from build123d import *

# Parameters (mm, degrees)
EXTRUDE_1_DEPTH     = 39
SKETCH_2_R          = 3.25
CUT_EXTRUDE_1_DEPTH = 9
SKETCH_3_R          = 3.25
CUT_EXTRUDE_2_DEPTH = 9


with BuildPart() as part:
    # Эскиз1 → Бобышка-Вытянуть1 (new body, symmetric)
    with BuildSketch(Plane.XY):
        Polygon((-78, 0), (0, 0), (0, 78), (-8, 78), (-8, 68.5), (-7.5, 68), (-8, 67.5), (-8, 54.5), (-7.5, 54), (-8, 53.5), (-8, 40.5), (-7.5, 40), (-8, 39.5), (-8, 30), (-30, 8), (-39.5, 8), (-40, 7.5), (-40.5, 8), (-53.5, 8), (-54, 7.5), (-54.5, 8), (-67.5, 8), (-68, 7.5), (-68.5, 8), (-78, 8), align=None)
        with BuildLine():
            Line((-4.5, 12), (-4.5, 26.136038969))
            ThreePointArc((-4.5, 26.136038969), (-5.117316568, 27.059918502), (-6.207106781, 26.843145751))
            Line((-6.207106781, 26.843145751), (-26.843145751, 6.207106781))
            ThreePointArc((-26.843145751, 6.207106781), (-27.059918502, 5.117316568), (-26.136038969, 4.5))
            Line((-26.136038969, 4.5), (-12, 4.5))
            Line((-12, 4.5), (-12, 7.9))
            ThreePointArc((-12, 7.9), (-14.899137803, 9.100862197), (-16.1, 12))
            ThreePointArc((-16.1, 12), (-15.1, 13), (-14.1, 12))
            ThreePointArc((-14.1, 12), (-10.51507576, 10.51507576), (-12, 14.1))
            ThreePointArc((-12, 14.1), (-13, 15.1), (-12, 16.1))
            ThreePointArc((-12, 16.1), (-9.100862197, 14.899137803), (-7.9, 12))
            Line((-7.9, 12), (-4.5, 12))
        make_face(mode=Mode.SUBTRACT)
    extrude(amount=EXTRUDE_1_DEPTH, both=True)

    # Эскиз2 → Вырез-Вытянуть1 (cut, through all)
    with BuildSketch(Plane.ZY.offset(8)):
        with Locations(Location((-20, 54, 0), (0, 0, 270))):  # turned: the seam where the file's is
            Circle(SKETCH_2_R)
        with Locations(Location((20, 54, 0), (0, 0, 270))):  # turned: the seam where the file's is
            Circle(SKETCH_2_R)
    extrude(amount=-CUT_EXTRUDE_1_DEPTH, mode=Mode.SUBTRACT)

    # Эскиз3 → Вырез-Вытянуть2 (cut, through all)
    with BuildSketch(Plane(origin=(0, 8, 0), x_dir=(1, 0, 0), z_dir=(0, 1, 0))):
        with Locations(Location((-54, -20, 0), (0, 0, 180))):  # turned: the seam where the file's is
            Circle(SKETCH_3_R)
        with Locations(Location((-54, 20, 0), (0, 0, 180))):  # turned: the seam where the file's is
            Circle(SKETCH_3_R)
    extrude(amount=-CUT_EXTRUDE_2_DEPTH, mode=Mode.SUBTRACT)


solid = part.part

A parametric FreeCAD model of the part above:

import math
import FreeCAD as App
import Part
import Sketcher


def add_polygon(sketch, points):
    """Adds a closed chain of lines whose ends are joined by coincident constraints."""
    first, n = sketch.GeometryCount, len(points)
    for a, b in zip(points, points[1:] + points[:1]):
        sketch.addGeometry(Part.LineSegment(App.Vector(*a, 0), App.Vector(*b, 0)), False)
    for i in range(n):
        sketch.addConstraint(Sketcher.Constraint("Coincident", first + i, 2, first + (i + 1) % n, 1))

doc = App.newDocument("Part")
params = doc.addObject("Spreadsheet::Sheet", "Params")
for row, (alias, value) in enumerate([
    ("sketch1_radius", "1 mm"),
    ("sketch1_radius2", "4.1 mm"),
    ("sketch1_width", "78 mm"),
    ("sketch1_width2", "8 mm"),
    ("sketch1_width3", "13 mm"),
    ("pad1_length", "78 mm"),
    ("sketch2_diameter", "6.5 mm"),
    ("sketch3_diameter", "6.5 mm"),
], start=1):
    params.set(f"A{row}", alias)
    params.set(f"B{row}", "=" + value)
    params.setAlias(f"B{row}", alias)

body = doc.addObject("PartDesign::Body", "Body")

# Sketch on XY plane
sketch1 = body.newObject("Sketcher::SketchObject", "Sketch")
sketch1.AttachmentSupport = (doc.getObject("XY_Plane"), [""])
sketch1.MapMode = "FlatFace"
add_polygon(sketch1, [(-78, 0), (0, 0), (0, 78), (-8, 78), (-8, 68.5), (-7.5, 68), (-8, 67.5), (-8, 54.5), (-7.5, 54), (-8, 53.5), (-8, 40.5), (-7.5, 40), (-8, 39.5), (-8, 30), (-30, 8), (-39.5, 8), (-40, 7.5), (-40.5, 8), (-53.5, 8), (-54, 7.5), (-54.5, 8), (-67.5, 8), (-68, 7.5), (-68.5, 8), (-78, 8)])  # lines 0-24
sketch1.addGeometry(Part.LineSegment(App.Vector(-4.5, 26.1, 0), App.Vector(-4.5, 12, 0)), False)  # 25
sketch1.addGeometry(Part.LineSegment(App.Vector(-4.5, 12, 0), App.Vector(-7.9, 12, 0)), False)  # 26
sketch1.addGeometry(Part.ArcOfCircle(Part.Circle(App.Vector(-12, 12, 0), App.Vector(0, 0, 1), 4.1), math.radians(0), math.radians(90)), False)  # 27
sketch1.addGeometry(Part.ArcOfCircle(Part.Circle(App.Vector(-12, 15.1, 0), App.Vector(0, 0, 1), 1), math.radians(90), math.radians(270)), False)  # 28
sketch1.addGeometry(Part.ArcOfCircle(Part.Circle(App.Vector(-12, 12, 0), App.Vector(0, 0, 1), 2.1), math.radians(180), math.radians(450)), False)  # 29
sketch1.addGeometry(Part.ArcOfCircle(Part.Circle(App.Vector(-15.1, 12, 0), App.Vector(0, 0, 1), 1), math.radians(0), math.radians(180)), False)  # 30
sketch1.addGeometry(Part.ArcOfCircle(Part.Circle(App.Vector(-12, 12, 0), App.Vector(0, 0, 1), 4.1), math.radians(180), math.radians(270)), False)  # 31
sketch1.addGeometry(Part.LineSegment(App.Vector(-12, 7.9, 0), App.Vector(-12, 4.5, 0)), False)  # 32
sketch1.addGeometry(Part.LineSegment(App.Vector(-12, 4.5, 0), App.Vector(-26.1, 4.5, 0)), False)  # 33
sketch1.addGeometry(Part.ArcOfCircle(Part.Circle(App.Vector(-26.1, 5.5, 0), App.Vector(0, 0, 1), 1), math.radians(135), math.radians(270)), False)  # 34
sketch1.addGeometry(Part.LineSegment(App.Vector(-26.8, 6.2, 0), App.Vector(-6.2, 26.8, 0)), False)  # 35
sketch1.addGeometry(Part.ArcOfCircle(Part.Circle(App.Vector(-5.5, 26.1, 0), App.Vector(0, 0, 1), 1), math.radians(0), math.radians(135)), False)  # 36
sketch1.addConstraint(Sketcher.Constraint("Coincident", 25, 2, 26, 1))
sketch1.addConstraint(Sketcher.Constraint("Coincident", 26, 2, 27, 1))
sketch1.addConstraint(Sketcher.Constraint("Tangent", 27, 2, 28, 1))
sketch1.addConstraint(Sketcher.Constraint("Tangent", 28, 2, 29, 2))
sketch1.addConstraint(Sketcher.Constraint("Tangent", 29, 1, 30, 1))
sketch1.addConstraint(Sketcher.Constraint("Tangent", 30, 2, 31, 1))
sketch1.addConstraint(Sketcher.Constraint("Coincident", 31, 2, 32, 1))
sketch1.addConstraint(Sketcher.Constraint("Coincident", 32, 2, 33, 1))
sketch1.addConstraint(Sketcher.Constraint("Tangent", 33, 2, 34, 2))
sketch1.addConstraint(Sketcher.Constraint("Tangent", 34, 1, 35, 1))
sketch1.addConstraint(Sketcher.Constraint("Tangent", 35, 2, 36, 2))
sketch1.addConstraint(Sketcher.Constraint("Tangent", 36, 1, 25, 1))
sketch1.addConstraint(Sketcher.Constraint("Horizontal", 0))
sketch1.addConstraint(Sketcher.Constraint("Vertical", 1))
sketch1.addConstraint(Sketcher.Constraint("Horizontal", 2))
sketch1.addConstraint(Sketcher.Constraint("Vertical", 3))
sketch1.addConstraint(Sketcher.Constraint("Vertical", 6))
sketch1.addConstraint(Sketcher.Constraint("Vertical", 9))
sketch1.addConstraint(Sketcher.Constraint("Vertical", 12))
sketch1.addConstraint(Sketcher.Constraint("Horizontal", 14))
sketch1.addConstraint(Sketcher.Constraint("Horizontal", 17))
sketch1.addConstraint(Sketcher.Constraint("Horizontal", 20))
sketch1.addConstraint(Sketcher.Constraint("Horizontal", 23))
sketch1.addConstraint(Sketcher.Constraint("Vertical", 24))
sketch1.addConstraint(Sketcher.Constraint("Vertical", 25))
sketch1.addConstraint(Sketcher.Constraint("Horizontal", 26))
sketch1.addConstraint(Sketcher.Constraint("Vertical", 32))
sketch1.addConstraint(Sketcher.Constraint("Horizontal", 33))
sketch1.addConstraint(Sketcher.Constraint("Coincident", 0, 2, -1, 1))
sketch1.addConstraint(Sketcher.Constraint("Coincident", 29, 3, 27, 3))
sketch1.addConstraint(Sketcher.Constraint("Coincident", 31, 3, 27, 3))
sketch1.addConstraint(Sketcher.Constraint("Equal", 28, 30))
sketch1.addConstraint(Sketcher.Constraint("Equal", 30, 34))
sketch1.addConstraint(Sketcher.Constraint("Equal", 34, 36))
sketch1.addConstraint(Sketcher.Constraint("Perpendicular", 4, 5))
sketch1.addConstraint(Sketcher.Constraint("Perpendicular", 5, 7))
sketch1.addConstraint(Sketcher.Constraint("Perpendicular", 7, 8))
sketch1.addConstraint(Sketcher.Constraint("Perpendicular", 8, 10))
sketch1.addConstraint(Sketcher.Constraint("Perpendicular", 10, 11))
sketch1.addConstraint(Sketcher.Constraint("Parallel", 11, 13))
sketch1.addConstraint(Sketcher.Constraint("Parallel", 13, 15))
sketch1.addConstraint(Sketcher.Constraint("Perpendicular", 15, 16))
sketch1.addConstraint(Sketcher.Constraint("Perpendicular", 16, 18))
sketch1.addConstraint(Sketcher.Constraint("Perpendicular", 18, 19))
sketch1.addConstraint(Sketcher.Constraint("Perpendicular", 19, 21))
sketch1.addConstraint(Sketcher.Constraint("Perpendicular", 21, 22))
sketch1.addConstraint(Sketcher.Constraint("Perpendicular", 22, 35))
sketch1.addConstraint(Sketcher.Constraint("Horizontal", 29, 3, 30, 3))
sketch1.addConstraint(Sketcher.Constraint("Horizontal", 14, 2, 16, 2))
sketch1.addConstraint(Sketcher.Constraint("Horizontal", 15, 2, 18, 2))
sketch1.addConstraint(Sketcher.Constraint("Horizontal", 17, 2, 19, 2))
sketch1.addConstraint(Sketcher.Constraint("Horizontal", 18, 2, 21, 2))
sketch1.addConstraint(Sketcher.Constraint("Horizontal", 20, 2, 22, 2))
sketch1.addConstraint(Sketcher.Constraint("Horizontal", 31, 3, 25, 2))
sketch1.addConstraint(Sketcher.Constraint("Vertical", 27, 3, 28, 3))
sketch1.addConstraint(Sketcher.Constraint("Vertical", 3, 2, 5, 2))
sketch1.addConstraint(Sketcher.Constraint("Vertical", 4, 2, 7, 2))
sketch1.addConstraint(Sketcher.Constraint("Vertical", 6, 2, 8, 2))
sketch1.addConstraint(Sketcher.Constraint("Vertical", 7, 2, 10, 2))
sketch1.addConstraint(Sketcher.Constraint("Vertical", 9, 2, 11, 2))
sketch1.addConstraint(Sketcher.Constraint("Vertical", 28, 2, 31, 2))
sketch1.addConstraint(Sketcher.Constraint("Equal", 17, 20))
sketch1.addConstraint(Sketcher.Constraint("Equal", 14, 23))
sketch1.addConstraint(Sketcher.Constraint("Equal", 0, 1))
sketch1.addConstraint(Sketcher.Constraint("Equal", 23, 3))
sketch1.addConstraint(Sketcher.Constraint("Equal", 20, 6))
sketch1.addConstraint(Sketcher.Constraint("Equal", 6, 9))
sketch1.addConstraint(Sketcher.Constraint("Equal", 3, 12))
sketch1.addConstraint(Sketcher.Constraint("Equal", 2, 24))
sketch1.addConstraint(Sketcher.Constraint("Equal", 33, 25))
sketch1.addConstraint(Sketcher.Constraint("Equal", 26, 32))
sketch1.addConstraint(Sketcher.Constraint("Radius", 28, 1.0))
sketch1.addConstraint(Sketcher.Constraint("Radius", 27, 4.1))
sketch1.addConstraint(Sketcher.Constraint("DistanceX", 0, 1, 0, 2, 78.0))
sketch1.addConstraint(Sketcher.Constraint("DistanceX", 2, 2, 2, 1, 8.0))
sketch1.addConstraint(Sketcher.Constraint("DistanceX", 17, 2, 17, 1, 13.0))
sketch1.addConstraint(Sketcher.Constraint("DistanceX", 14, 2, 14, 1, 9.5))
sketch1.addConstraint(Sketcher.Constraint("DistanceX", 26, 2, 26, 1, 3.4))
sketch1.addConstraint(Sketcher.Constraint("DistanceX", 27, 3, -1, 1, 12.0))
sketch1.addConstraint(Sketcher.Constraint("DistanceY", -1, 1, 27, 3, 12.0))
sketch1.addConstraint(Sketcher.Constraint("DistanceY", -1, 1, 4, 2, 68.0))
sketch1.addConstraint(Sketcher.Constraint("DistanceX", 33, 2, 33, 1, 14.136039))
sketch1.setExpression("Constraints[96]", "Params.sketch1_radius")
sketch1.setExpression("Constraints[97]", "Params.sketch1_radius2")
sketch1.setExpression("Constraints[98]", "Params.sketch1_width")
sketch1.setExpression("Constraints[99]", "Params.sketch1_width2")
sketch1.setExpression("Constraints[100]", "Params.sketch1_width3")
pad1 = body.newObject("PartDesign::Pad", "Pad")
pad1.Profile = sketch1
pad1.setExpression("Length", "Params.pad1_length")
pad1.Midplane = True

# Sketch on YZ plane
sketch2 = body.newObject("Sketcher::SketchObject", "Sketch001")
sketch2.AttachmentSupport = (doc.getObject("YZ_Plane"), [""])
sketch2.MapMode = "FlatFace"
sketch2.AttachmentOffset = App.Placement(App.Vector(0, 0, -8), App.Rotation())
sketch2.addGeometry(Part.Circle(App.Vector(54, -20, 0), App.Vector(0, 0, 1), 3.2), False)
sketch2.addGeometry(Part.Circle(App.Vector(54, 20, 0), App.Vector(0, 0, 1), 3.2), False)
sketch2.addConstraint(Sketcher.Constraint("Equal", 0, 1))
sketch2.addConstraint(Sketcher.Constraint("Symmetric", 0, 3, 1, 3, -1))
sketch2.addConstraint(Sketcher.Constraint("Diameter", 0, 6.5))
sketch2.addConstraint(Sketcher.Constraint("DistanceX", -1, 1, 0, 3, 54.0))
sketch2.addConstraint(Sketcher.Constraint("DistanceY", 0, 3, -1, 1, 20.0))
sketch2.setExpression("Constraints[2]", "Params.sketch2_diameter")
pocket1 = body.newObject("PartDesign::Pocket", "Pocket")
pocket1.Profile = sketch2
pocket1.Type = "ThroughAll"
pocket1.Reversed = True

# Sketch on XZ plane
sketch3 = body.newObject("Sketcher::SketchObject", "Sketch002")
sketch3.AttachmentSupport = (doc.getObject("XZ_Plane"), [""])
sketch3.MapMode = "FlatFace"
sketch3.AttachmentOffset = App.Placement(App.Vector(0, 0, -8), App.Rotation())
sketch3.addGeometry(Part.Circle(App.Vector(-54, 20, 0), App.Vector(0, 0, 1), 3.2), False)
sketch3.addGeometry(Part.Circle(App.Vector(-54, -20, 0), App.Vector(0, 0, 1), 3.2), False)
sketch3.addConstraint(Sketcher.Constraint("Equal", 0, 1))
sketch3.addConstraint(Sketcher.Constraint("Symmetric", 0, 3, 1, 3, -1))
sketch3.addConstraint(Sketcher.Constraint("Diameter", 0, 6.5))
sketch3.addConstraint(Sketcher.Constraint("DistanceX", 0, 3, -1, 1, 54.0))
sketch3.addConstraint(Sketcher.Constraint("DistanceY", -1, 1, 0, 3, 20.0))
sketch3.setExpression("Constraints[2]", "Params.sketch3_diameter")
pocket2 = body.newObject("PartDesign::Pocket", "Pocket001")
pocket2.Profile = sketch3
pocket2.Type = "ThroughAll"
pocket2.Reversed = True

doc.recompute()
